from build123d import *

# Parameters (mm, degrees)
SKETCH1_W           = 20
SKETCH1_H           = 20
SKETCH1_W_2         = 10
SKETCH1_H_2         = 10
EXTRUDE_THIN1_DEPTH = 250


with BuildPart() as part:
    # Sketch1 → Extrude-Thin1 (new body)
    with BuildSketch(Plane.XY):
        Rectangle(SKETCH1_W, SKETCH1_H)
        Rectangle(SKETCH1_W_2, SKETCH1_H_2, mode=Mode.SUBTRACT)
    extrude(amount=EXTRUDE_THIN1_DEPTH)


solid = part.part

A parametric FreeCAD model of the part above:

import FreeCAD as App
import Part
import Sketcher


def add_polygon(sketch, points):
    """Adds a closed chain of lines whose ends are joined by coincident constraints."""
    first, n = sketch.GeometryCount, len(points)
    for a, b in zip(points, points[1:] + points[:1]):
        sketch.addGeometry(Part.LineSegment(App.Vector(*a, 0), App.Vector(*b, 0)), False)
    for i in range(n):
        sketch.addConstraint(Sketcher.Constraint("Coincident", first + i, 2, first + (i + 1) % n, 1))

doc = App.newDocument("Part")
body = doc.addObject("PartDesign::Body", "Body")

# Sketch on XY plane
sketch1 = body.newObject("Sketcher::SketchObject", "Sketch")
sketch1.AttachmentSupport = (doc.getObject("XY_Plane"), [""])
sketch1.MapMode = "FlatFace"
add_polygon(sketch1, [(-10, 10), (-10, -10), (10, -10), (10, 10)])  # lines 0-3
add_polygon(sketch1, [(5, -5), (-5, -5), (-5, 5), (5, 5)])  # lines 4-7
sketch1.addConstraint(Sketcher.Constraint("Vertical", 0))
sketch1.addConstraint(Sketcher.Constraint("Horizontal", 1))
sketch1.addConstraint(Sketcher.Constraint("Vertical", 2))
sketch1.addConstraint(Sketcher.Constraint("Horizontal", 3))
sketch1.addConstraint(Sketcher.Constraint("Horizontal", 4))
sketch1.addConstraint(Sketcher.Constraint("Vertical", 5))
sketch1.addConstraint(Sketcher.Constraint("Horizontal", 6))
sketch1.addConstraint(Sketcher.Constraint("Vertical", 7))
sketch1.addConstraint(Sketcher.Constraint("Symmetric", 0, 2, 2, 2, -1, 1))
sketch1.addConstraint(Sketcher.Constraint("Symmetric", 4, 2, 6, 2, -1, 1))
sketch1.addConstraint(Sketcher.Constraint("Equal", 3, 0))
sketch1.addConstraint(Sketcher.Constraint("Equal", 6, 5))
sketch1.addConstraint(Sketcher.Constraint("DistanceX", 1, 1, 1, 2, 20.0))
sketch1.addConstraint(Sketcher.Constraint("DistanceX", 4, 2, 4, 1, 10.0))
pad1 = body.newObject("PartDesign::Pad", "Pad")
pad1.Profile = sketch1
pad1.Length = 250

doc.recompute()
